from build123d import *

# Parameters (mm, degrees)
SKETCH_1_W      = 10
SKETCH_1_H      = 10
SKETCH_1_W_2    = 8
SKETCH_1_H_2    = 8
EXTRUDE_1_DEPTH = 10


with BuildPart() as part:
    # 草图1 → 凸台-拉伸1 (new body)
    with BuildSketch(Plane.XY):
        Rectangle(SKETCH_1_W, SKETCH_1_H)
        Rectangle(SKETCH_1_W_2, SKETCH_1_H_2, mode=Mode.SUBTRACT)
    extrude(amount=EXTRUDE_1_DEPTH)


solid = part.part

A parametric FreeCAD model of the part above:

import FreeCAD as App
import Part
import Sketcher

V = App.Vector


def add_polygon(sketch, points):
    """Adds a closed chain of lines whose ends are joined by coincident constraints."""
    first, n = sketch.GeometryCount, len(points)
    for a, b in zip(points, points[1:] + points[:1]):
        sketch.addGeometry(Part.LineSegment(App.Vector(*a, 0), App.Vector(*b, 0)), False)
    for i in range(n):
        sketch.addConstraint(Sketcher.Constraint("Coincident", first + i, 2, first + (i + 1) % n, 1))

doc = App.newDocument("Part")
body = doc.addObject("PartDesign::Body", "Body")

# Sketch on XY plane
sketch1 = body.newObject("Sketcher::SketchObject", "Sketch")
sketch1.AttachmentSupport = (doc.getObject("XY_Plane"), [""])
sketch1.MapMode = "FlatFace"
add_polygon(sketch1, [(-5, 5), (-5, -5), (5, -5), (5, 5)])  # lines 0-3
add_polygon(sketch1, [(4, -4), (-4, -4), (-4, 4), (4, 4)])  # lines 4-7
sketch1.addConstraint([
    Sketcher.Constraint("Vertical", 0),
    Sketcher.Constraint("Horizontal", 1),
    Sketcher.Constraint("Vertical", 2),
    Sketcher.Constraint("Horizontal", 3),
    Sketcher.Constraint("Horizontal", 4),
    Sketcher.Constraint("Vertical", 5),
    Sketcher.Constraint("Horizontal", 6),
    Sketcher.Constraint("Vertical", 7),
    Sketcher.Constraint("Symmetric", 0, 2, 2, 2, -1, 1),
    Sketcher.Constraint("Symmetric", 4, 2, 6, 2, -1, 1),
    Sketcher.Constraint("Equal", 3, 0),
    Sketcher.Constraint("Equal", 6, 5),
    Sketcher.Constraint("DistanceX", 1, 1, 1, 2, 10.0),
    Sketcher.Constraint("DistanceX", 4, 2, 4, 1, 8.0),
])
pad1 = body.newObject("PartDesign::Pad", "Pad")
pad1.Profile = sketch1
pad1.Length = 10

doc.recompute()
